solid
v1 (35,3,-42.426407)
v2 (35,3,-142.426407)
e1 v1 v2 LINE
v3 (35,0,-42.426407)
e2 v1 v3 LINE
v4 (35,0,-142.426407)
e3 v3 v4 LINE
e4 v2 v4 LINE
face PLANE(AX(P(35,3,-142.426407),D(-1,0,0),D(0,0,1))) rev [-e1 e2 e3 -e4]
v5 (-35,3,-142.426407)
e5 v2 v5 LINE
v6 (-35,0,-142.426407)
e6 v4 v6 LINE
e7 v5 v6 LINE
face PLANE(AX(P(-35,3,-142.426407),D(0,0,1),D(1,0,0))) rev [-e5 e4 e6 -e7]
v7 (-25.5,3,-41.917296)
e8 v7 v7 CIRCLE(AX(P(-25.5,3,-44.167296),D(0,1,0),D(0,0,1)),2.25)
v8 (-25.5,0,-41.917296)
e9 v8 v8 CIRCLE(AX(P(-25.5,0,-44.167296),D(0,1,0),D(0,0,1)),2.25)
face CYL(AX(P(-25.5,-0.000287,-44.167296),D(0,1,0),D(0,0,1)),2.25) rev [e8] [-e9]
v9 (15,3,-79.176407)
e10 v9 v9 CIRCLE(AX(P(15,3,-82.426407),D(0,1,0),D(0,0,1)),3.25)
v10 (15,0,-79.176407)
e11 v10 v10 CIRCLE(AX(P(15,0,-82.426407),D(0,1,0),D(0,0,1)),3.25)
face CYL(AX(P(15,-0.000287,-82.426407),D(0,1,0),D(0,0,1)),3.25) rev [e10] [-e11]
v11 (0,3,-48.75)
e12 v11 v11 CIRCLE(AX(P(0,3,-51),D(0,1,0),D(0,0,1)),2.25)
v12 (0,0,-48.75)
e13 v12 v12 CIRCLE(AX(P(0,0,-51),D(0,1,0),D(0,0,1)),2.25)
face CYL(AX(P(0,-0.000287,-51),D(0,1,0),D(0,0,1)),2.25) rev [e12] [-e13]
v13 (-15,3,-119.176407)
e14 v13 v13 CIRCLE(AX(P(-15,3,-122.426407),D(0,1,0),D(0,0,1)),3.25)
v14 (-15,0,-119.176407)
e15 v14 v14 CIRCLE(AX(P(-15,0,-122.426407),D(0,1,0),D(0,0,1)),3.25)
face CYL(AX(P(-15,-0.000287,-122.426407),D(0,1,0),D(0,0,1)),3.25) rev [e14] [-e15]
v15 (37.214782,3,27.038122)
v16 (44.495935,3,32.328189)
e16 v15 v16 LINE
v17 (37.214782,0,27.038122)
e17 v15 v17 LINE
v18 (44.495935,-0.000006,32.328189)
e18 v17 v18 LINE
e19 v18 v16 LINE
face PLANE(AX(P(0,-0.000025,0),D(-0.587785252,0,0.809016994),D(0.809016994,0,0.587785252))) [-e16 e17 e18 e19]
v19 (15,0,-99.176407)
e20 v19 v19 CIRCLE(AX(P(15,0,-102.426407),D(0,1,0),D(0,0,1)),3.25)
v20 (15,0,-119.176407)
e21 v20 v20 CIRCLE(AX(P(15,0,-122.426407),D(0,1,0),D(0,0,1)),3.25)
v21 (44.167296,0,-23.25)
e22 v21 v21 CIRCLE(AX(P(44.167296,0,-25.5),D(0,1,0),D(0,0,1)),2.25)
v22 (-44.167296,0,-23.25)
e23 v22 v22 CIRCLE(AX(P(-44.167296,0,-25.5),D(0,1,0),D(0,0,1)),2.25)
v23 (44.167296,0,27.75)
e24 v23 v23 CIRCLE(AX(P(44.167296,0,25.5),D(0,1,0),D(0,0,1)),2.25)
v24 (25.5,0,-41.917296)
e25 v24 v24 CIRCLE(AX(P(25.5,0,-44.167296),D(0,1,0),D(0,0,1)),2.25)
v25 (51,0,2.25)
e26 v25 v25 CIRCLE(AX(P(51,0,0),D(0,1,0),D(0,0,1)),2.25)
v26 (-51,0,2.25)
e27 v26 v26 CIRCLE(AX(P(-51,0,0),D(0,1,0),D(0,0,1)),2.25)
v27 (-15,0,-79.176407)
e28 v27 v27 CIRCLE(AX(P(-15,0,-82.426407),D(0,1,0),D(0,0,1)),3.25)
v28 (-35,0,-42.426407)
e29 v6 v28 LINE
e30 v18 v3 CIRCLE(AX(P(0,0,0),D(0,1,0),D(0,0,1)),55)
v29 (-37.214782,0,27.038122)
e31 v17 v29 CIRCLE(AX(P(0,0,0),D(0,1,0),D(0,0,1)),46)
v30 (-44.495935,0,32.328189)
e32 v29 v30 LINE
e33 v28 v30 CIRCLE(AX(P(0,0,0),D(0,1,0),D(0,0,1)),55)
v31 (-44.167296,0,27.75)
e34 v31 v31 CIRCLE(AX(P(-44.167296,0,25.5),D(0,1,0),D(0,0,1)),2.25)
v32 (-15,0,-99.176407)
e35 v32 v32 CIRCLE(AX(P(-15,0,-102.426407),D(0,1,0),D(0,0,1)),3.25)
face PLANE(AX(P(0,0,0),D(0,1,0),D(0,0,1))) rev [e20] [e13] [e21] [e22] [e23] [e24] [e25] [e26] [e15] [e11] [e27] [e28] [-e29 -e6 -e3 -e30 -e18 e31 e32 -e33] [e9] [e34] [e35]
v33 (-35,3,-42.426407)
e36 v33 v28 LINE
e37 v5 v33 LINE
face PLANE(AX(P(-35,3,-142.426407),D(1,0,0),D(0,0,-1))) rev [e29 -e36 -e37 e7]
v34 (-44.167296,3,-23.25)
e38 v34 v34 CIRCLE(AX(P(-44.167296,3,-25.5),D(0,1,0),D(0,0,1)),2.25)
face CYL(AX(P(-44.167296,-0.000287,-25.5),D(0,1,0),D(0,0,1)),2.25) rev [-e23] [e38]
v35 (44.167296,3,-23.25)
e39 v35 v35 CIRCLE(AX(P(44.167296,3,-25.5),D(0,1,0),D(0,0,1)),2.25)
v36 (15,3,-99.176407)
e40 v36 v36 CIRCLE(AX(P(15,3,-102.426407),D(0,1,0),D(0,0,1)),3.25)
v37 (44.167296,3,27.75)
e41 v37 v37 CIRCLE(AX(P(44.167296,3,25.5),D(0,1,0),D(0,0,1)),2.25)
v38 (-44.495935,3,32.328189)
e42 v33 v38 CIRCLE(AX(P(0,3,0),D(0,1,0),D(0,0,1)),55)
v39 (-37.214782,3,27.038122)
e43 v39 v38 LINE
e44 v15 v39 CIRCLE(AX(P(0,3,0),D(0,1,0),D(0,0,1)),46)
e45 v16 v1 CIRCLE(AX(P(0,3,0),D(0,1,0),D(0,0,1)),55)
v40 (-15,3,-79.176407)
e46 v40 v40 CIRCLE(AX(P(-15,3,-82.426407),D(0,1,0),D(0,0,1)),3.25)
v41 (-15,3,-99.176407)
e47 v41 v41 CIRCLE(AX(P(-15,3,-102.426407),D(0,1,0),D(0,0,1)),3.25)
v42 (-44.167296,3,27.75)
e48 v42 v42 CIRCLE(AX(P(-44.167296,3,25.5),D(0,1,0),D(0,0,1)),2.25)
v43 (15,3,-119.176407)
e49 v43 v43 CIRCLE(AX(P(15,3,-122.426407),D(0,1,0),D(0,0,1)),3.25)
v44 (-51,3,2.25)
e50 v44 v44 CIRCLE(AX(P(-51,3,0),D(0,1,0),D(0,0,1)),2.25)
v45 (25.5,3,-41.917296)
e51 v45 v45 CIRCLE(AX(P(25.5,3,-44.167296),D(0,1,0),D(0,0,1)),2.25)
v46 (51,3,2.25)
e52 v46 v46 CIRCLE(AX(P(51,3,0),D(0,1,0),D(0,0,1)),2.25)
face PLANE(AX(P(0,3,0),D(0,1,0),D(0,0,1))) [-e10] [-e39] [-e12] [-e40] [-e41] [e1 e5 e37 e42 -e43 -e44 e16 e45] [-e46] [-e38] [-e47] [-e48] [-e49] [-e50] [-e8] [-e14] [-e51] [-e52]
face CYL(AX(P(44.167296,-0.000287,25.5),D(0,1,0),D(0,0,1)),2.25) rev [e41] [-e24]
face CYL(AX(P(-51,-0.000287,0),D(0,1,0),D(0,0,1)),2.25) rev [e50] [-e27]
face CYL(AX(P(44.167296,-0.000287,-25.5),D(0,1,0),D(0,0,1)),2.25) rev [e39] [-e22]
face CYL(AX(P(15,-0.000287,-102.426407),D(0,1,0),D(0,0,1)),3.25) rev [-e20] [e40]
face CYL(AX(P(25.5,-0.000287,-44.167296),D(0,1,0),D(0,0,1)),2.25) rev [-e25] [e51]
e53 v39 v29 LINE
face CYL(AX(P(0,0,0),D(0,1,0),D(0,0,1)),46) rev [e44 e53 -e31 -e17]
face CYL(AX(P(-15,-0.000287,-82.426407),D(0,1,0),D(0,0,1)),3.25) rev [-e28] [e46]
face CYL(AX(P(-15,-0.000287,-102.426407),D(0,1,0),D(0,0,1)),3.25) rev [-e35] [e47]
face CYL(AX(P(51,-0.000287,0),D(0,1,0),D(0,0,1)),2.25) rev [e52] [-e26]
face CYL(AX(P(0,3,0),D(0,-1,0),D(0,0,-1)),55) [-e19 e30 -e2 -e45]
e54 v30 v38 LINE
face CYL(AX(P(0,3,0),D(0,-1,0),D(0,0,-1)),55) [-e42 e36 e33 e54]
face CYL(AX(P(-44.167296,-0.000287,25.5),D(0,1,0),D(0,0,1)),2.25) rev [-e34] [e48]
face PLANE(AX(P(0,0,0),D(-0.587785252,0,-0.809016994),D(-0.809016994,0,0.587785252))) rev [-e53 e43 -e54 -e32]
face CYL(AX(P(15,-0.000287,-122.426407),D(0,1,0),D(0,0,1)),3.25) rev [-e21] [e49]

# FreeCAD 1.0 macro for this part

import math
import FreeCAD as App
import Part
import Sketcher
from FreeCAD import Vector
Q = App.Units.Quantity

doc = App.newDocument("Part")
body = doc.addObject("PartDesign::Body", "Body")

# Sketch on XZ plane
sketch1 = body.newObject("Sketcher::SketchObject", "Sketch")
sketch1.AttachmentSupport = (doc.getObject("XZ_Plane"), [""])
sketch1.MapMode = "FlatFace"
sketch1.addGeometry(Part.Circle(Vector(0, 0, 0), Vector(0, 0, 1), 55), False)
sketch1.addConstraint([
    Sketcher.Constraint("Coincident", 0, 3, -1, 1),
    Sketcher.Constraint("Diameter", 0, Q("110 mm")),
])
pad1 = body.newObject("PartDesign::Pad", "Pad")
pad1.Profile = sketch1
pad1.Length = 3
pad1.Reversed = True

# Sketch on XZ plane
sketch2 = body.newObject("Sketcher::SketchObject", "Sketch001")
sketch2.AttachmentSupport = (doc.getObject("XZ_Plane"), [""])
sketch2.MapMode = "FlatFace"
sketch2.addGeometry([
    Part.LineSegment(Vector(-35, -142.426407, 0), Vector(-35, -42.426407, 0)),
    Part.LineSegment(Vector(-35, -42.426407, 0), Vector(35, -42.426407, 0)),
    Part.LineSegment(Vector(35, -42.426407, 0), Vector(35, -142.426407, 0)),
    Part.LineSegment(Vector(35, -142.426407, 0), Vector(-35, -142.426407, 0)),
], False)
sketch2.addConstraint([
    Sketcher.Constraint("Coincident", 0, 2, 1, 1),
    Sketcher.Constraint("Coincident", 1, 2, 2, 1),
    Sketcher.Constraint("Coincident", 2, 2, 3, 1),
    Sketcher.Constraint("Coincident", 3, 2, 0, 1),
    Sketcher.Constraint("Vertical", 0),
    Sketcher.Constraint("Horizontal", 1),
    Sketcher.Constraint("Vertical", 2),
    Sketcher.Constraint("Horizontal", 3),
    Sketcher.Constraint("DistanceX", 1, 1, 1, 2, Q("70 mm")),
    Sketcher.Constraint("DistanceY", 0, 1, 0, 2, Q("100 mm")),
    Sketcher.Constraint("DistanceX", 0, 2, -1, 1, Q("35 mm")),
    Sketcher.Constraint("DistanceY", 0, 2, -1, 1, Q("42.426407 mm")),
])
pad2 = body.newObject("PartDesign::Pad", "Pad001")
pad2.Profile = sketch2
pad2.Length = 3
pad2.Reversed = True

# Sketch on XZ plane
sketch3 = body.newObject("Sketcher::SketchObject", "Sketch002")
sketch3.AttachmentSupport = (doc.getObject("XZ_Plane"), [""])
sketch3.MapMode = "FlatFace"
sketch3.AttachmentOffset = App.Placement(Vector(0, 0, -3), App.Rotation())
sketch3.addGeometry(Part.Circle(Vector(0, 0, 0), Vector(0, 0, 1), 46), False)
sketch3.addConstraint([
    Sketcher.Constraint("Coincident", 0, 3, -1, 1),
    Sketcher.Constraint("Diameter", 0, Q("92 mm")),
])
pocket1 = body.newObject("PartDesign::Pocket", "Pocket")
pocket1.Profile = sketch3
pocket1.Type = "ThroughAll"
pocket1.Midplane = True

# Sketch on XZ plane
sketch4 = body.newObject("Sketcher::SketchObject", "Sketch003")
sketch4.AttachmentSupport = (doc.getObject("XZ_Plane"), [""])
sketch4.MapMode = "FlatFace"
sketch4.AttachmentOffset = App.Placement(Vector(0, 0, 1), App.Rotation())
sketch4.addGeometry([
    Part.LineSegment(Vector(0, 55, 0), Vector(0, 0, 0)),
    Part.LineSegment(Vector(0, 0, 0), Vector(-44.495935, 32.328189, 0)),
    Part.ArcOfCircle(Part.Circle(Vector(0, 0, 0), Vector(0, 0, 1), 55), math.radians(90), math.radians(144)),
], False)
sketch4.addConstraint([
    Sketcher.Constraint("Coincident", 0, 2, 1, 1),
    Sketcher.Constraint("Coincident", 1, 2, 2, 2),
    Sketcher.Constraint("Coincident", 2, 1, 0, 1),
    Sketcher.Constraint("Vertical", 0),
    Sketcher.Constraint("Coincident", 2, 3, -1, 1),
    Sketcher.Constraint("Coincident", 0, 2, -1, 1),
    Sketcher.Constraint("Radius", 2, Q("55 mm")),
    Sketcher.Constraint("Angle", 1, Q("144 deg")),
])
pocket2 = body.newObject("PartDesign::Pocket", "Pocket001")
pocket2.Profile = sketch4
pocket2.Length = 5
doc.recompute()

mirrored = body.newObject("PartDesign::Mirrored", "Mirrored")
mirrored.Originals = [pocket2]
mirrored.MirrorPlane = (doc.getObject("YZ_Plane"), [""])
body.Tip = mirrored

# Sketch on XZ plane
sketch5 = body.newObject("Sketcher::SketchObject", "Sketch004")
sketch5.AttachmentSupport = (doc.getObject("XZ_Plane"), [""])
sketch5.MapMode = "FlatFace"
sketch5.AttachmentOffset = App.Placement(Vector(0, 0, 1), App.Rotation())
sketch5.addGeometry(Part.Circle(Vector(0, -51, 0), Vector(0, 0, 1), 2.25), False)
sketch5.addConstraint([
    Sketcher.Constraint("PointOnObject", 0, 3, -2),
    Sketcher.Constraint("Diameter", 0, Q("4.5 mm")),
    Sketcher.Constraint("DistanceY", 0, 3, -1, 1, Q("51 mm")),
])
pocket3 = body.newObject("PartDesign::Pocket", "Pocket002")
pocket3.Profile = sketch5
pocket3.Length = 5
doc.recompute()

polarpattern = body.newObject("PartDesign::PolarPattern", "PolarPattern")
polarpattern.Originals = [pocket3]
polarpattern.Axis = (doc.getObject("Y_Axis"), [""])
polarpattern.Angle = 360
polarpattern.Occurrences = 12
body.Tip = polarpattern

# Sketch on XZ plane
sketch6 = body.newObject("Sketcher::SketchObject", "Sketch005")
sketch6.AttachmentSupport = (doc.getObject("XZ_Plane"), [""])
sketch6.MapMode = "FlatFace"
sketch6.AttachmentOffset = App.Placement(Vector(0, 0, 1), App.Rotation())
sketch6.addGeometry([
    Part.Circle(Vector(15, -122.426407, 0), Vector(0, 0, 1), 3.25),
    Part.Circle(Vector(-15, -122.426407, 0), Vector(0, 0, 1), 3.25),
], False)
sketch6.addConstraint([
    Sketcher.Constraint("Equal", 0, 1),
    Sketcher.Constraint("Symmetric", 0, 3, 1, 3, -2),
    Sketcher.Constraint("Diameter", 0, Q("6.5 mm")),
    Sketcher.Constraint("DistanceX", -1, 1, 0, 3, Q("15 mm")),
    Sketcher.Constraint("DistanceY", 0, 3, -1, 1, Q("122.426407 mm")),
])
pocket4 = body.newObject("PartDesign::Pocket", "Pocket003")
pocket4.Profile = sketch6
pocket4.Length = 5
doc.recompute()

linearpattern = body.newObject("PartDesign::LinearPattern", "LinearPattern")
linearpattern.Originals = [pocket4]
linearpattern.Direction = (doc.getObject("Z_Axis"), [""])
linearpattern.Mode = "offset"
linearpattern.Offset = 20
linearpattern.Occurrences = 3
body.Tip = linearpattern

doc.recompute()
